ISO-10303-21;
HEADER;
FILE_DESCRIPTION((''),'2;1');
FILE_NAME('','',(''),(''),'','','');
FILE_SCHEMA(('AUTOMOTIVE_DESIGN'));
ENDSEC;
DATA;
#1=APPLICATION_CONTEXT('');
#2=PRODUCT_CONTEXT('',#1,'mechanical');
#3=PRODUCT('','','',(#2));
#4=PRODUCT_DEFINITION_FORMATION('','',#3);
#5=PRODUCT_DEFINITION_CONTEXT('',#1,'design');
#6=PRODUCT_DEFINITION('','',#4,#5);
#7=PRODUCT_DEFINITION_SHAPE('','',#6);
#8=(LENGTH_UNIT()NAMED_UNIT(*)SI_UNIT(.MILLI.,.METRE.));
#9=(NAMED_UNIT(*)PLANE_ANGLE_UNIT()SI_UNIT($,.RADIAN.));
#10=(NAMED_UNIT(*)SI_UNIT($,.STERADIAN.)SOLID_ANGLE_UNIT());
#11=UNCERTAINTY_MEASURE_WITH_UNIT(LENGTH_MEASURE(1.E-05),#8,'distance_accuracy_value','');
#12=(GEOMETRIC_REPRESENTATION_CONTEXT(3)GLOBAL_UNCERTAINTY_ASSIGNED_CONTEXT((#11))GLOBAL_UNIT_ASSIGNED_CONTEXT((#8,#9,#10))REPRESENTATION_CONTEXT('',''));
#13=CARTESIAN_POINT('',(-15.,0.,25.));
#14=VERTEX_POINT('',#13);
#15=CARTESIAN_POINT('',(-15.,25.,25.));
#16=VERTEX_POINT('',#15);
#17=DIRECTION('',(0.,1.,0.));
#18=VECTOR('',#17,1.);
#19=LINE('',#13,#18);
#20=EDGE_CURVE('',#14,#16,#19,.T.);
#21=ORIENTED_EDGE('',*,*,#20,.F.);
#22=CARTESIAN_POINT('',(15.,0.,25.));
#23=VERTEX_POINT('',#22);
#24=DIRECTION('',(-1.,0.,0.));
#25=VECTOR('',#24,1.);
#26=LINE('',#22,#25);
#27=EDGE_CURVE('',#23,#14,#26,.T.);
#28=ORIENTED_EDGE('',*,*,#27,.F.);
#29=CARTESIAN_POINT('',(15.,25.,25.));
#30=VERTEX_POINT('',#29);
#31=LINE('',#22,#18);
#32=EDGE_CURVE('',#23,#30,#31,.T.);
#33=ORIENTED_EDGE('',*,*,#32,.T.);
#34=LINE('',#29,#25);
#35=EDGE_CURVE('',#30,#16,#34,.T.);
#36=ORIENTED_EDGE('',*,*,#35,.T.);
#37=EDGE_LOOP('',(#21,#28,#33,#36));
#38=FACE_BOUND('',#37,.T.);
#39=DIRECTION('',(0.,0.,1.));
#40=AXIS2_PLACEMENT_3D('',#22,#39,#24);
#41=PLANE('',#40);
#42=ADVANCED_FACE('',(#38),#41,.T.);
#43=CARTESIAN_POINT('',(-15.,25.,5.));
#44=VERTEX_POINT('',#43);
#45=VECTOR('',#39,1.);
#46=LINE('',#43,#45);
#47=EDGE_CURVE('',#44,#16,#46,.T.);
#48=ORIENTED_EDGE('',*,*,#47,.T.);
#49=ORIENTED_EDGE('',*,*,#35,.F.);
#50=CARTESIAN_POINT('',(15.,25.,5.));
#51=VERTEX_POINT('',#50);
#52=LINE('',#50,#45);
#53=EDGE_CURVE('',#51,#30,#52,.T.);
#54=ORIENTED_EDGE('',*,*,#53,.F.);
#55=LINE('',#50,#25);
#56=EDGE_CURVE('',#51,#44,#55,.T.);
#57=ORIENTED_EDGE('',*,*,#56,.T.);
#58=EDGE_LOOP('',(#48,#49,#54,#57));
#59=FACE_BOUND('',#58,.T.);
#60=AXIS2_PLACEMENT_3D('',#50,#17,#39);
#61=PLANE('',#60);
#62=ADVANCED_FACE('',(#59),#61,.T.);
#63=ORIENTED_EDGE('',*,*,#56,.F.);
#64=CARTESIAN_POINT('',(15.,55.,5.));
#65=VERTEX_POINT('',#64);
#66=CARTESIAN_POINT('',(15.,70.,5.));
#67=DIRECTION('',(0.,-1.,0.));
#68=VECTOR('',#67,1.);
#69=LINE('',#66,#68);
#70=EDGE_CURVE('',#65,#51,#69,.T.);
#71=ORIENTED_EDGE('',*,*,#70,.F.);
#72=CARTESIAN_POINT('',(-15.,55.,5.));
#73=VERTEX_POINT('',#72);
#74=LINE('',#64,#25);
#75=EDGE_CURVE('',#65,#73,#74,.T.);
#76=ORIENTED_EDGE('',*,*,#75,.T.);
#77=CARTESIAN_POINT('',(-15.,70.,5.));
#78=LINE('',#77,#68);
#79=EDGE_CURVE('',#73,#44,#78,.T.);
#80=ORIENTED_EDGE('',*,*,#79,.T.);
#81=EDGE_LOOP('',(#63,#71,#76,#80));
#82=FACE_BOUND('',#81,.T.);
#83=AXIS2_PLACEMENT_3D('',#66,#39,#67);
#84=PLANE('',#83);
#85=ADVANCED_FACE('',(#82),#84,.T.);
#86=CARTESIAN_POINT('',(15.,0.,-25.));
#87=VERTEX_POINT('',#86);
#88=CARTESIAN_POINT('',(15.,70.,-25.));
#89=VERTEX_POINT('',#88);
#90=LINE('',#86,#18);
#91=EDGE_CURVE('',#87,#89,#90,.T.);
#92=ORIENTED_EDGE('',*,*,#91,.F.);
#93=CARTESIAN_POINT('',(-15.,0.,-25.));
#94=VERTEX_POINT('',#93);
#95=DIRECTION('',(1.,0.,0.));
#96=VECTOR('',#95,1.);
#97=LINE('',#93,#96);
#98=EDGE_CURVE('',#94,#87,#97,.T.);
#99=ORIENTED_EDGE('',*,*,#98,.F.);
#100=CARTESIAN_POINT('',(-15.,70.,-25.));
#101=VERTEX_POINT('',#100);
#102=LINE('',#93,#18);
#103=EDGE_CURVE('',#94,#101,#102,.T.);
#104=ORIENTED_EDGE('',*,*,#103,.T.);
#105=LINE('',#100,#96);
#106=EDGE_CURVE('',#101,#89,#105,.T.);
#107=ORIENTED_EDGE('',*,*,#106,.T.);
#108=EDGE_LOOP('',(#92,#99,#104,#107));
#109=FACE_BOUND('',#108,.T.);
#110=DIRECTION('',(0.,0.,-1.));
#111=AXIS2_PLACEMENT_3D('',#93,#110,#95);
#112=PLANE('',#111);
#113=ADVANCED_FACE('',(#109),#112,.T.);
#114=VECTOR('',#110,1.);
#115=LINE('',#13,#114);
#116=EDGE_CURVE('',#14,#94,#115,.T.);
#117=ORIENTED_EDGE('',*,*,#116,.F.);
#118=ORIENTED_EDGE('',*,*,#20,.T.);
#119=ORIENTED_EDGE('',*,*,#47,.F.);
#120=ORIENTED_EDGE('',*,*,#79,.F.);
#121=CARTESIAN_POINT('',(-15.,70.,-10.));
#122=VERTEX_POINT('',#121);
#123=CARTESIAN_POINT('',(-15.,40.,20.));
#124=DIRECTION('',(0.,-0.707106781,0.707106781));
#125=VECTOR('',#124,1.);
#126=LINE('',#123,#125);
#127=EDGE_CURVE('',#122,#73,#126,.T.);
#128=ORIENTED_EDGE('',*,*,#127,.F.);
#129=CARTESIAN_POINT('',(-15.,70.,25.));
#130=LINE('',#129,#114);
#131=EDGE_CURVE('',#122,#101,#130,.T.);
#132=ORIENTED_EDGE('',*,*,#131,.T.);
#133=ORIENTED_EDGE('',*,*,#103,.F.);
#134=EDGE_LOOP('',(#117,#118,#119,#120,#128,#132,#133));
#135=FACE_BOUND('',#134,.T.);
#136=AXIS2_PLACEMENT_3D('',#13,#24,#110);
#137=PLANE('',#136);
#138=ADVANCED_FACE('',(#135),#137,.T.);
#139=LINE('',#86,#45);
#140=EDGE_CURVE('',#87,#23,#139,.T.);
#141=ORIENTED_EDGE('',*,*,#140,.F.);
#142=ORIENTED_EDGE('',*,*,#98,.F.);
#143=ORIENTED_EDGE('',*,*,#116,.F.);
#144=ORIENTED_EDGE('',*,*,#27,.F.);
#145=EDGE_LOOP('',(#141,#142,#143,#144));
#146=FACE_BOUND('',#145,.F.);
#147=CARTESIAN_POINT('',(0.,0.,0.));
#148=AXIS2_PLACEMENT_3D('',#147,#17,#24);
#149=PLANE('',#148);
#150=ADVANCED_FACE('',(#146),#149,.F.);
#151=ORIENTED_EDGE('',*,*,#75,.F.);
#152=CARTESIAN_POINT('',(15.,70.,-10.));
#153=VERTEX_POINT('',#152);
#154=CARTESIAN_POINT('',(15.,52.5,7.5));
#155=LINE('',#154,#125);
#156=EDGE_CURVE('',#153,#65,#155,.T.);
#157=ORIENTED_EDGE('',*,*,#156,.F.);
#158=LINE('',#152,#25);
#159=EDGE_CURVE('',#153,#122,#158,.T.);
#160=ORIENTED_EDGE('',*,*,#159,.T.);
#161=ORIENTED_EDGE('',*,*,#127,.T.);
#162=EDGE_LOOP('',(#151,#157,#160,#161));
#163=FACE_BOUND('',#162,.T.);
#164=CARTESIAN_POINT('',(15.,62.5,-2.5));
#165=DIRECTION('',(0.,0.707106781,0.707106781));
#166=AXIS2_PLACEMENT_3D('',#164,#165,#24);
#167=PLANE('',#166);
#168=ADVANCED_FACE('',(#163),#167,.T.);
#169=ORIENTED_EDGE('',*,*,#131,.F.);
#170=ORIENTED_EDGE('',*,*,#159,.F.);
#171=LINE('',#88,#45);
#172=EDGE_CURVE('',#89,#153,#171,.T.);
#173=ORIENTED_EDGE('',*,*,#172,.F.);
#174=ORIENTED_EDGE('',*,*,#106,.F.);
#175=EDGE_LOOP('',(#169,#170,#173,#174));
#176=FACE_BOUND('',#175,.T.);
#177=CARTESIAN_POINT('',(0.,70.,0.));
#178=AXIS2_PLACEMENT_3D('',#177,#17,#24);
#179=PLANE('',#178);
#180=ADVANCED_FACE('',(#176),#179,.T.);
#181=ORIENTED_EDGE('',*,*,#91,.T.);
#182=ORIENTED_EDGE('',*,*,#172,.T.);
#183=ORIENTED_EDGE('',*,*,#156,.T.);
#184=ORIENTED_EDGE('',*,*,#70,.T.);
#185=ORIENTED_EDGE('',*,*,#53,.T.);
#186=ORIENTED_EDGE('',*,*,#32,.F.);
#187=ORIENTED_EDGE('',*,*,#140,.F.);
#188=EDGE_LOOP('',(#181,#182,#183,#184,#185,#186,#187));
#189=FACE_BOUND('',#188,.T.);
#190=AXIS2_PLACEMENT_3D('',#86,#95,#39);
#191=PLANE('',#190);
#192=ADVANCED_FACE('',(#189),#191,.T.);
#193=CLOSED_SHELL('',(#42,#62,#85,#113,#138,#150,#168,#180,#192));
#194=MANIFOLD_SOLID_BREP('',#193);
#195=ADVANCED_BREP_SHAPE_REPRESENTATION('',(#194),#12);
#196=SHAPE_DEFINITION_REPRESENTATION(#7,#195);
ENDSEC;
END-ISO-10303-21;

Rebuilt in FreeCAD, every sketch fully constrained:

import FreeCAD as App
import Part
import Sketcher
from FreeCAD import Vector
Q = App.Units.Quantity


def edges_at(feature, points):
    """Names of the edges that pass closest to the given points."""
    edges = feature.Shape.Edges
    near = lambda p: min(range(len(edges)), key=lambda i: edges[i].distToShape(Part.Vertex(*p))[0])
    return sorted({f"Edge{near(p) + 1}" for p in points})

doc = App.newDocument("Part")
body = doc.addObject("PartDesign::Body", "Body")

# Sketch on XZ plane
sketch1 = doc.addObject("Sketcher::SketchObject", "Sketch")
body.addObject(sketch1)
sketch1.AttachmentSupport = (doc.XZ_Plane, [""])
sketch1.MapMode = "FlatFace"
sketch1.addGeometry(Part.LineSegment(Vector(-15, 25, 0), Vector(15, 25, 0)), False)
sketch1.addGeometry(Part.LineSegment(Vector(15, 25, 0), Vector(15, -25, 0)), False)
sketch1.addGeometry(Part.LineSegment(Vector(15, -25, 0), Vector(-15, -25, 0)), False)
sketch1.addGeometry(Part.LineSegment(Vector(-15, -25, 0), Vector(-15, 25, 0)), False)
sketch1.addConstraint(Sketcher.Constraint("Coincident", 0, 2, 1, 1))
sketch1.addConstraint(Sketcher.Constraint("Coincident", 1, 2, 2, 1))
sketch1.addConstraint(Sketcher.Constraint("Coincident", 2, 2, 3, 1))
sketch1.addConstraint(Sketcher.Constraint("Coincident", 3, 2, 0, 1))
sketch1.addConstraint(Sketcher.Constraint("Horizontal", 0))
sketch1.addConstraint(Sketcher.Constraint("Vertical", 1))
sketch1.addConstraint(Sketcher.Constraint("Horizontal", 2))
sketch1.addConstraint(Sketcher.Constraint("Vertical", 3))
sketch1.addConstraint(Sketcher.Constraint("Symmetric", 0, 2, 2, 2, -1, 1))
sketch1.addConstraint(Sketcher.Constraint("DistanceX", 0, 1, 0, 2, Q("30 mm")))
sketch1.addConstraint(Sketcher.Constraint("DistanceY", 1, 2, 1, 1, Q("50 mm")))
pad1 = doc.addObject("PartDesign::Pad", "Pad")
body.addObject(pad1)
pad1.Profile = sketch1
pad1.Length = 70
pad1.Reversed = True

# Sketch on YZ plane
sketch2 = doc.addObject("Sketcher::SketchObject", "Sketch001")
body.addObject(sketch2)
sketch2.AttachmentSupport = (doc.YZ_Plane, [""])
sketch2.MapMode = "FlatFace"
sketch2.AttachmentOffset = App.Placement(Vector(0, 0, 15), App.Rotation())
sketch2.addGeometry(Part.LineSegment(Vector(70, 5, 0), Vector(70, 25, 0)), False)
sketch2.addGeometry(Part.LineSegment(Vector(70, 25, 0), Vector(25, 25, 0)), False)
sketch2.addGeometry(Part.LineSegment(Vector(25, 25, 0), Vector(25, 5, 0)), False)
sketch2.addGeometry(Part.LineSegment(Vector(25, 5, 0), Vector(70, 5, 0)), False)
sketch2.addConstraint(Sketcher.Constraint("Coincident", 0, 2, 1, 1))
sketch2.addConstraint(Sketcher.Constraint("Coincident", 1, 2, 2, 1))
sketch2.addConstraint(Sketcher.Constraint("Coincident", 2, 2, 3, 1))
sketch2.addConstraint(Sketcher.Constraint("Coincident", 3, 2, 0, 1))
sketch2.addConstraint(Sketcher.Constraint("Vertical", 0))
sketch2.addConstraint(Sketcher.Constraint("Horizontal", 1))
sketch2.addConstraint(Sketcher.Constraint("Vertical", 2))
sketch2.addConstraint(Sketcher.Constraint("Horizontal", 3))
sketch2.addConstraint(Sketcher.Constraint("DistanceY", -1, 1, 0, 2, Q("25 mm")))
sketch2.addConstraint(Sketcher.Constraint("DistanceX", -1, 1, 1, 2, Q("25 mm")))
sketch2.addConstraint(Sketcher.Constraint("DistanceX", 1, 2, 1, 1, Q("45 mm")))
sketch2.addConstraint(Sketcher.Constraint("DistanceY", 0, 1, 0, 2, Q("20 mm")))
pocket1 = doc.addObject("PartDesign::Pocket", "Pocket")
body.addObject(pocket1)
pocket1.Profile = sketch2
pocket1.Length = 30
doc.recompute()

chamfer = doc.addObject("PartDesign::Chamfer", "Chamfer")
body.addObject(chamfer)
chamfer.Base = (pocket1, edges_at(pocket1, [(0, 70, 5)]))
chamfer.Size = 15

doc.recompute()
